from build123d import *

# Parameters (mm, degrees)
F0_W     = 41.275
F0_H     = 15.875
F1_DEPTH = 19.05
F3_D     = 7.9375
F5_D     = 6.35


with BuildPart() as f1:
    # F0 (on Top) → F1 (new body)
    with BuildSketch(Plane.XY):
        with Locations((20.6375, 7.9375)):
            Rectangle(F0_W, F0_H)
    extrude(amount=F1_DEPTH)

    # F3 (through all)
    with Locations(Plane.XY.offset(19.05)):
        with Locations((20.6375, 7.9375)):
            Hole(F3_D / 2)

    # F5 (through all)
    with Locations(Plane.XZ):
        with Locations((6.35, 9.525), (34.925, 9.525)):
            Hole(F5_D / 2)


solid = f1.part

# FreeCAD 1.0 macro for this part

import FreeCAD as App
import Part
import Sketcher
from FreeCAD import Vector
Q = App.Units.Quantity


def add_polygon(sketch, points):
    """Adds a closed chain of lines whose ends are joined by coincident constraints."""
    first, n = sketch.GeometryCount, len(points)
    for a, b in zip(points, points[1:] + points[:1]):
        sketch.addGeometry(Part.LineSegment(App.Vector(*a, 0), App.Vector(*b, 0)), False)
    for i in range(n):
        sketch.addConstraint(Sketcher.Constraint("Coincident", first + i, 2, first + (i + 1) % n, 1))

doc = App.newDocument("Part")
body = doc.addObject("PartDesign::Body", "Body")

# Sketch on XY plane
sketch1 = body.newObject("Sketcher::SketchObject", "Sketch")
sketch1.AttachmentSupport = (doc.getObject("XY_Plane"), [""])
sketch1.MapMode = "FlatFace"
add_polygon(sketch1, [(0, 16), (0, 0), (41, 0), (41, 16)])  # lines 0-3
sketch1.addConstraint(Sketcher.Constraint("Vertical", 0))
sketch1.addConstraint(Sketcher.Constraint("Horizontal", 1))
sketch1.addConstraint(Sketcher.Constraint("Vertical", 2))
sketch1.addConstraint(Sketcher.Constraint("Horizontal", 3))
sketch1.addConstraint(Sketcher.Constraint("Coincident", 0, 2, -1, 1))
sketch1.addConstraint(Sketcher.Constraint("DistanceX", 1, 1, 1, 2, Q("1.625 in")))
sketch1.addConstraint(Sketcher.Constraint("DistanceY", 0, 2, 0, 1, Q("0.625 in")))
pad1 = body.newObject("PartDesign::Pad", "Pad")
pad1.Profile = sketch1
pad1.Length = Q("0.75 in")

# Sketch on XY plane
sketch2 = body.newObject("Sketcher::SketchObject", "Sketch001")
sketch2.AttachmentSupport = (doc.getObject("XY_Plane"), [""])
sketch2.MapMode = "FlatFace"
sketch2.AttachmentOffset = App.Placement(Vector(0, 0, 0.75 * 25.4), App.Rotation())
sketch2.addGeometry(Part.Circle(Vector(20.6, 7.9, 0), Vector(0, 0, 1), 4), False)
sketch2.addConstraint(Sketcher.Constraint("Diameter", 0, Q("0.3125 in")))
sketch2.addConstraint(Sketcher.Constraint("DistanceX", -1, 1, 0, 3, Q("0.8125 in")))
sketch2.addConstraint(Sketcher.Constraint("DistanceY", -1, 1, 0, 3, Q("0.3125 in")))
doc.recompute()
hole = body.newObject("PartDesign::Hole", "Hole")
hole.Profile = sketch2
hole.ThreadType = "None"
hole.Diameter = Q("0.3125 in")
hole.DepthType = "ThroughAll"

# Sketch on XZ plane
sketch3 = body.newObject("Sketcher::SketchObject", "Sketch002")
sketch3.AttachmentSupport = (doc.getObject("XZ_Plane"), [""])
sketch3.MapMode = "FlatFace"
sketch3.addGeometry(Part.Circle(Vector(6.3, 9.5, 0), Vector(0, 0, 1), 3.2), False)
sketch3.addGeometry(Part.Circle(Vector(34.9, 9.5, 0), Vector(0, 0, 1), 3.2), False)
sketch3.addConstraint(Sketcher.Constraint("Equal", 0, 1))
sketch3.addConstraint(Sketcher.Constraint("Horizontal", 0, 3, 1, 3))
sketch3.addConstraint(Sketcher.Constraint("Diameter", 0, Q("0.25 in")))
sketch3.addConstraint(Sketcher.Constraint("DistanceX", -1, 1, 0, 3, Q("0.25 in")))
sketch3.addConstraint(Sketcher.Constraint("DistanceY", -1, 1, 0, 3, Q("0.375 in")))
sketch3.addConstraint(Sketcher.Constraint("DistanceX", -1, 1, 1, 3, Q("1.375 in")))
doc.recompute()
hole2 = body.newObject("PartDesign::Hole", "Hole001")
hole2.Profile = sketch3
hole2.ThreadType = "None"
hole2.Diameter = Q("0.25 in")
hole2.DepthType = "ThroughAll"

doc.recompute()
